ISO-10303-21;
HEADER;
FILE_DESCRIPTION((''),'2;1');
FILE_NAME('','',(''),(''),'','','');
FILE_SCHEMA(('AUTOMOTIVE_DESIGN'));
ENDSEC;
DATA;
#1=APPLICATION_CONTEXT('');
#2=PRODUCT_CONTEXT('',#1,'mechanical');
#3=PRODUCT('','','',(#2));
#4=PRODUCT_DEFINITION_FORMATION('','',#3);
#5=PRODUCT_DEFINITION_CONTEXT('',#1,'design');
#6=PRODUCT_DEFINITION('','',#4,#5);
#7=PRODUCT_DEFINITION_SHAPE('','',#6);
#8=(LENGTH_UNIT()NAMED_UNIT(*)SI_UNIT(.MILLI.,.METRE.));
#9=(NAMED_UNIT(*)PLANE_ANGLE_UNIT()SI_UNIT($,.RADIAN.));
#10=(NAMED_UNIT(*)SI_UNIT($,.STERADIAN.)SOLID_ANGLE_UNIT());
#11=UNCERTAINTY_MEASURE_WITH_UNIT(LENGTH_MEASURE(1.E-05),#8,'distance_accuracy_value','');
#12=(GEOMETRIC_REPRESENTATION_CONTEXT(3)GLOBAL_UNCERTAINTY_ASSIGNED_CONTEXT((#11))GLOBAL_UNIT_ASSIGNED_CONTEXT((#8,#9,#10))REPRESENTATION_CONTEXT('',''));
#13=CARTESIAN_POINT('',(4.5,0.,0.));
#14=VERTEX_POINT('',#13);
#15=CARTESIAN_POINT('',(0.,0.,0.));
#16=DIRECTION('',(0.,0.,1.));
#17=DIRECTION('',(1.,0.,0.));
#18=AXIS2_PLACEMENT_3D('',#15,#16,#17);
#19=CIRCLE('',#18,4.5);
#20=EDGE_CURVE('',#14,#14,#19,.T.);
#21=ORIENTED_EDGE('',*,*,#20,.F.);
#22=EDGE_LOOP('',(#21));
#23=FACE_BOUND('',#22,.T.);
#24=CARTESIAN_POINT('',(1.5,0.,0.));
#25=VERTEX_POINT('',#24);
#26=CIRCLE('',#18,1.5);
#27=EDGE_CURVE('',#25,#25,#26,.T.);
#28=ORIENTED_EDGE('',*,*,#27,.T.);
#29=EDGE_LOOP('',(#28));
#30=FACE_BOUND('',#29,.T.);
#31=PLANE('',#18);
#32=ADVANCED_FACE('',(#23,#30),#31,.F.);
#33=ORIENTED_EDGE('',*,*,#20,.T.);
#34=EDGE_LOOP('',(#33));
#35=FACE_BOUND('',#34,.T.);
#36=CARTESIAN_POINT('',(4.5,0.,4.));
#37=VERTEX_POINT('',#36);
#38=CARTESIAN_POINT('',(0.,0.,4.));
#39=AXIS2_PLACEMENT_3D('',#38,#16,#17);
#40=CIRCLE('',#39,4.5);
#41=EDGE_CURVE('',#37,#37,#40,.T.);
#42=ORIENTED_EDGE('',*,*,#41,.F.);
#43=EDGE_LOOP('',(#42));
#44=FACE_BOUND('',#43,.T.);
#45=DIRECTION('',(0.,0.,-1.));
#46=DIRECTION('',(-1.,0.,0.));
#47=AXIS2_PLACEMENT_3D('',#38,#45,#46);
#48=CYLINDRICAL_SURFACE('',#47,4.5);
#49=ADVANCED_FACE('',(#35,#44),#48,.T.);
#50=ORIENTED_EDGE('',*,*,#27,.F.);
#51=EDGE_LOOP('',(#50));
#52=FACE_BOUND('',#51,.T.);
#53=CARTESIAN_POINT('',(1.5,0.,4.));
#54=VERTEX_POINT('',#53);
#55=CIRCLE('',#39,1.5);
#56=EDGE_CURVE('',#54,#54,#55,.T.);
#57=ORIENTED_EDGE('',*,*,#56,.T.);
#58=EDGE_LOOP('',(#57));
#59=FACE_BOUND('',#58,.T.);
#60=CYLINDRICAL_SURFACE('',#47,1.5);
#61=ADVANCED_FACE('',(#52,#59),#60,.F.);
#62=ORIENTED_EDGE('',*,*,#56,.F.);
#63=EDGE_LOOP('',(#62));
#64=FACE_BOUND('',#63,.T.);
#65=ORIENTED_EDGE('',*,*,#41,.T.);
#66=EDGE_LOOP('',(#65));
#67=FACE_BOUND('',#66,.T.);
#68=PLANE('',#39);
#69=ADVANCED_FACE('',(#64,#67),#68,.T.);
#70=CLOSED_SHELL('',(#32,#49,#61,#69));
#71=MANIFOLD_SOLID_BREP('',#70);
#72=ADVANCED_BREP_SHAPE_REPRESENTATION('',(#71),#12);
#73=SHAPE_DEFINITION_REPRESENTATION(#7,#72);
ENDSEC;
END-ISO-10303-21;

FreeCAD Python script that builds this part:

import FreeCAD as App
import Part
import Sketcher
from FreeCAD import Vector
Q = App.Units.Quantity

doc = App.newDocument("Part")
body = doc.addObject("PartDesign::Body", "Body")

# Sketch on XY plane
sketch1 = body.newObject("Sketcher::SketchObject", "Sketch")
sketch1.AttachmentSupport = (doc.getObject("XY_Plane"), [""])
sketch1.MapMode = "FlatFace"
sketch1.addGeometry([
    Part.Circle(Vector(0, 0, 0), Vector(0, 0, 1), 4.5),
    Part.Circle(Vector(0, 0, 0), Vector(0, 0, 1), 1.5),
], False)
sketch1.addConstraint([
    Sketcher.Constraint("Coincident", 0, 3, -1, 1),
    Sketcher.Constraint("Coincident", 1, 3, -1, 1),
    Sketcher.Constraint("Diameter", 0, Q("9 mm")),
    Sketcher.Constraint("Diameter", 1, Q("3 mm")),
])
pad1 = body.newObject("PartDesign::Pad", "Pad")
pad1.Profile = sketch1
pad1.Length = 4

doc.recompute()
